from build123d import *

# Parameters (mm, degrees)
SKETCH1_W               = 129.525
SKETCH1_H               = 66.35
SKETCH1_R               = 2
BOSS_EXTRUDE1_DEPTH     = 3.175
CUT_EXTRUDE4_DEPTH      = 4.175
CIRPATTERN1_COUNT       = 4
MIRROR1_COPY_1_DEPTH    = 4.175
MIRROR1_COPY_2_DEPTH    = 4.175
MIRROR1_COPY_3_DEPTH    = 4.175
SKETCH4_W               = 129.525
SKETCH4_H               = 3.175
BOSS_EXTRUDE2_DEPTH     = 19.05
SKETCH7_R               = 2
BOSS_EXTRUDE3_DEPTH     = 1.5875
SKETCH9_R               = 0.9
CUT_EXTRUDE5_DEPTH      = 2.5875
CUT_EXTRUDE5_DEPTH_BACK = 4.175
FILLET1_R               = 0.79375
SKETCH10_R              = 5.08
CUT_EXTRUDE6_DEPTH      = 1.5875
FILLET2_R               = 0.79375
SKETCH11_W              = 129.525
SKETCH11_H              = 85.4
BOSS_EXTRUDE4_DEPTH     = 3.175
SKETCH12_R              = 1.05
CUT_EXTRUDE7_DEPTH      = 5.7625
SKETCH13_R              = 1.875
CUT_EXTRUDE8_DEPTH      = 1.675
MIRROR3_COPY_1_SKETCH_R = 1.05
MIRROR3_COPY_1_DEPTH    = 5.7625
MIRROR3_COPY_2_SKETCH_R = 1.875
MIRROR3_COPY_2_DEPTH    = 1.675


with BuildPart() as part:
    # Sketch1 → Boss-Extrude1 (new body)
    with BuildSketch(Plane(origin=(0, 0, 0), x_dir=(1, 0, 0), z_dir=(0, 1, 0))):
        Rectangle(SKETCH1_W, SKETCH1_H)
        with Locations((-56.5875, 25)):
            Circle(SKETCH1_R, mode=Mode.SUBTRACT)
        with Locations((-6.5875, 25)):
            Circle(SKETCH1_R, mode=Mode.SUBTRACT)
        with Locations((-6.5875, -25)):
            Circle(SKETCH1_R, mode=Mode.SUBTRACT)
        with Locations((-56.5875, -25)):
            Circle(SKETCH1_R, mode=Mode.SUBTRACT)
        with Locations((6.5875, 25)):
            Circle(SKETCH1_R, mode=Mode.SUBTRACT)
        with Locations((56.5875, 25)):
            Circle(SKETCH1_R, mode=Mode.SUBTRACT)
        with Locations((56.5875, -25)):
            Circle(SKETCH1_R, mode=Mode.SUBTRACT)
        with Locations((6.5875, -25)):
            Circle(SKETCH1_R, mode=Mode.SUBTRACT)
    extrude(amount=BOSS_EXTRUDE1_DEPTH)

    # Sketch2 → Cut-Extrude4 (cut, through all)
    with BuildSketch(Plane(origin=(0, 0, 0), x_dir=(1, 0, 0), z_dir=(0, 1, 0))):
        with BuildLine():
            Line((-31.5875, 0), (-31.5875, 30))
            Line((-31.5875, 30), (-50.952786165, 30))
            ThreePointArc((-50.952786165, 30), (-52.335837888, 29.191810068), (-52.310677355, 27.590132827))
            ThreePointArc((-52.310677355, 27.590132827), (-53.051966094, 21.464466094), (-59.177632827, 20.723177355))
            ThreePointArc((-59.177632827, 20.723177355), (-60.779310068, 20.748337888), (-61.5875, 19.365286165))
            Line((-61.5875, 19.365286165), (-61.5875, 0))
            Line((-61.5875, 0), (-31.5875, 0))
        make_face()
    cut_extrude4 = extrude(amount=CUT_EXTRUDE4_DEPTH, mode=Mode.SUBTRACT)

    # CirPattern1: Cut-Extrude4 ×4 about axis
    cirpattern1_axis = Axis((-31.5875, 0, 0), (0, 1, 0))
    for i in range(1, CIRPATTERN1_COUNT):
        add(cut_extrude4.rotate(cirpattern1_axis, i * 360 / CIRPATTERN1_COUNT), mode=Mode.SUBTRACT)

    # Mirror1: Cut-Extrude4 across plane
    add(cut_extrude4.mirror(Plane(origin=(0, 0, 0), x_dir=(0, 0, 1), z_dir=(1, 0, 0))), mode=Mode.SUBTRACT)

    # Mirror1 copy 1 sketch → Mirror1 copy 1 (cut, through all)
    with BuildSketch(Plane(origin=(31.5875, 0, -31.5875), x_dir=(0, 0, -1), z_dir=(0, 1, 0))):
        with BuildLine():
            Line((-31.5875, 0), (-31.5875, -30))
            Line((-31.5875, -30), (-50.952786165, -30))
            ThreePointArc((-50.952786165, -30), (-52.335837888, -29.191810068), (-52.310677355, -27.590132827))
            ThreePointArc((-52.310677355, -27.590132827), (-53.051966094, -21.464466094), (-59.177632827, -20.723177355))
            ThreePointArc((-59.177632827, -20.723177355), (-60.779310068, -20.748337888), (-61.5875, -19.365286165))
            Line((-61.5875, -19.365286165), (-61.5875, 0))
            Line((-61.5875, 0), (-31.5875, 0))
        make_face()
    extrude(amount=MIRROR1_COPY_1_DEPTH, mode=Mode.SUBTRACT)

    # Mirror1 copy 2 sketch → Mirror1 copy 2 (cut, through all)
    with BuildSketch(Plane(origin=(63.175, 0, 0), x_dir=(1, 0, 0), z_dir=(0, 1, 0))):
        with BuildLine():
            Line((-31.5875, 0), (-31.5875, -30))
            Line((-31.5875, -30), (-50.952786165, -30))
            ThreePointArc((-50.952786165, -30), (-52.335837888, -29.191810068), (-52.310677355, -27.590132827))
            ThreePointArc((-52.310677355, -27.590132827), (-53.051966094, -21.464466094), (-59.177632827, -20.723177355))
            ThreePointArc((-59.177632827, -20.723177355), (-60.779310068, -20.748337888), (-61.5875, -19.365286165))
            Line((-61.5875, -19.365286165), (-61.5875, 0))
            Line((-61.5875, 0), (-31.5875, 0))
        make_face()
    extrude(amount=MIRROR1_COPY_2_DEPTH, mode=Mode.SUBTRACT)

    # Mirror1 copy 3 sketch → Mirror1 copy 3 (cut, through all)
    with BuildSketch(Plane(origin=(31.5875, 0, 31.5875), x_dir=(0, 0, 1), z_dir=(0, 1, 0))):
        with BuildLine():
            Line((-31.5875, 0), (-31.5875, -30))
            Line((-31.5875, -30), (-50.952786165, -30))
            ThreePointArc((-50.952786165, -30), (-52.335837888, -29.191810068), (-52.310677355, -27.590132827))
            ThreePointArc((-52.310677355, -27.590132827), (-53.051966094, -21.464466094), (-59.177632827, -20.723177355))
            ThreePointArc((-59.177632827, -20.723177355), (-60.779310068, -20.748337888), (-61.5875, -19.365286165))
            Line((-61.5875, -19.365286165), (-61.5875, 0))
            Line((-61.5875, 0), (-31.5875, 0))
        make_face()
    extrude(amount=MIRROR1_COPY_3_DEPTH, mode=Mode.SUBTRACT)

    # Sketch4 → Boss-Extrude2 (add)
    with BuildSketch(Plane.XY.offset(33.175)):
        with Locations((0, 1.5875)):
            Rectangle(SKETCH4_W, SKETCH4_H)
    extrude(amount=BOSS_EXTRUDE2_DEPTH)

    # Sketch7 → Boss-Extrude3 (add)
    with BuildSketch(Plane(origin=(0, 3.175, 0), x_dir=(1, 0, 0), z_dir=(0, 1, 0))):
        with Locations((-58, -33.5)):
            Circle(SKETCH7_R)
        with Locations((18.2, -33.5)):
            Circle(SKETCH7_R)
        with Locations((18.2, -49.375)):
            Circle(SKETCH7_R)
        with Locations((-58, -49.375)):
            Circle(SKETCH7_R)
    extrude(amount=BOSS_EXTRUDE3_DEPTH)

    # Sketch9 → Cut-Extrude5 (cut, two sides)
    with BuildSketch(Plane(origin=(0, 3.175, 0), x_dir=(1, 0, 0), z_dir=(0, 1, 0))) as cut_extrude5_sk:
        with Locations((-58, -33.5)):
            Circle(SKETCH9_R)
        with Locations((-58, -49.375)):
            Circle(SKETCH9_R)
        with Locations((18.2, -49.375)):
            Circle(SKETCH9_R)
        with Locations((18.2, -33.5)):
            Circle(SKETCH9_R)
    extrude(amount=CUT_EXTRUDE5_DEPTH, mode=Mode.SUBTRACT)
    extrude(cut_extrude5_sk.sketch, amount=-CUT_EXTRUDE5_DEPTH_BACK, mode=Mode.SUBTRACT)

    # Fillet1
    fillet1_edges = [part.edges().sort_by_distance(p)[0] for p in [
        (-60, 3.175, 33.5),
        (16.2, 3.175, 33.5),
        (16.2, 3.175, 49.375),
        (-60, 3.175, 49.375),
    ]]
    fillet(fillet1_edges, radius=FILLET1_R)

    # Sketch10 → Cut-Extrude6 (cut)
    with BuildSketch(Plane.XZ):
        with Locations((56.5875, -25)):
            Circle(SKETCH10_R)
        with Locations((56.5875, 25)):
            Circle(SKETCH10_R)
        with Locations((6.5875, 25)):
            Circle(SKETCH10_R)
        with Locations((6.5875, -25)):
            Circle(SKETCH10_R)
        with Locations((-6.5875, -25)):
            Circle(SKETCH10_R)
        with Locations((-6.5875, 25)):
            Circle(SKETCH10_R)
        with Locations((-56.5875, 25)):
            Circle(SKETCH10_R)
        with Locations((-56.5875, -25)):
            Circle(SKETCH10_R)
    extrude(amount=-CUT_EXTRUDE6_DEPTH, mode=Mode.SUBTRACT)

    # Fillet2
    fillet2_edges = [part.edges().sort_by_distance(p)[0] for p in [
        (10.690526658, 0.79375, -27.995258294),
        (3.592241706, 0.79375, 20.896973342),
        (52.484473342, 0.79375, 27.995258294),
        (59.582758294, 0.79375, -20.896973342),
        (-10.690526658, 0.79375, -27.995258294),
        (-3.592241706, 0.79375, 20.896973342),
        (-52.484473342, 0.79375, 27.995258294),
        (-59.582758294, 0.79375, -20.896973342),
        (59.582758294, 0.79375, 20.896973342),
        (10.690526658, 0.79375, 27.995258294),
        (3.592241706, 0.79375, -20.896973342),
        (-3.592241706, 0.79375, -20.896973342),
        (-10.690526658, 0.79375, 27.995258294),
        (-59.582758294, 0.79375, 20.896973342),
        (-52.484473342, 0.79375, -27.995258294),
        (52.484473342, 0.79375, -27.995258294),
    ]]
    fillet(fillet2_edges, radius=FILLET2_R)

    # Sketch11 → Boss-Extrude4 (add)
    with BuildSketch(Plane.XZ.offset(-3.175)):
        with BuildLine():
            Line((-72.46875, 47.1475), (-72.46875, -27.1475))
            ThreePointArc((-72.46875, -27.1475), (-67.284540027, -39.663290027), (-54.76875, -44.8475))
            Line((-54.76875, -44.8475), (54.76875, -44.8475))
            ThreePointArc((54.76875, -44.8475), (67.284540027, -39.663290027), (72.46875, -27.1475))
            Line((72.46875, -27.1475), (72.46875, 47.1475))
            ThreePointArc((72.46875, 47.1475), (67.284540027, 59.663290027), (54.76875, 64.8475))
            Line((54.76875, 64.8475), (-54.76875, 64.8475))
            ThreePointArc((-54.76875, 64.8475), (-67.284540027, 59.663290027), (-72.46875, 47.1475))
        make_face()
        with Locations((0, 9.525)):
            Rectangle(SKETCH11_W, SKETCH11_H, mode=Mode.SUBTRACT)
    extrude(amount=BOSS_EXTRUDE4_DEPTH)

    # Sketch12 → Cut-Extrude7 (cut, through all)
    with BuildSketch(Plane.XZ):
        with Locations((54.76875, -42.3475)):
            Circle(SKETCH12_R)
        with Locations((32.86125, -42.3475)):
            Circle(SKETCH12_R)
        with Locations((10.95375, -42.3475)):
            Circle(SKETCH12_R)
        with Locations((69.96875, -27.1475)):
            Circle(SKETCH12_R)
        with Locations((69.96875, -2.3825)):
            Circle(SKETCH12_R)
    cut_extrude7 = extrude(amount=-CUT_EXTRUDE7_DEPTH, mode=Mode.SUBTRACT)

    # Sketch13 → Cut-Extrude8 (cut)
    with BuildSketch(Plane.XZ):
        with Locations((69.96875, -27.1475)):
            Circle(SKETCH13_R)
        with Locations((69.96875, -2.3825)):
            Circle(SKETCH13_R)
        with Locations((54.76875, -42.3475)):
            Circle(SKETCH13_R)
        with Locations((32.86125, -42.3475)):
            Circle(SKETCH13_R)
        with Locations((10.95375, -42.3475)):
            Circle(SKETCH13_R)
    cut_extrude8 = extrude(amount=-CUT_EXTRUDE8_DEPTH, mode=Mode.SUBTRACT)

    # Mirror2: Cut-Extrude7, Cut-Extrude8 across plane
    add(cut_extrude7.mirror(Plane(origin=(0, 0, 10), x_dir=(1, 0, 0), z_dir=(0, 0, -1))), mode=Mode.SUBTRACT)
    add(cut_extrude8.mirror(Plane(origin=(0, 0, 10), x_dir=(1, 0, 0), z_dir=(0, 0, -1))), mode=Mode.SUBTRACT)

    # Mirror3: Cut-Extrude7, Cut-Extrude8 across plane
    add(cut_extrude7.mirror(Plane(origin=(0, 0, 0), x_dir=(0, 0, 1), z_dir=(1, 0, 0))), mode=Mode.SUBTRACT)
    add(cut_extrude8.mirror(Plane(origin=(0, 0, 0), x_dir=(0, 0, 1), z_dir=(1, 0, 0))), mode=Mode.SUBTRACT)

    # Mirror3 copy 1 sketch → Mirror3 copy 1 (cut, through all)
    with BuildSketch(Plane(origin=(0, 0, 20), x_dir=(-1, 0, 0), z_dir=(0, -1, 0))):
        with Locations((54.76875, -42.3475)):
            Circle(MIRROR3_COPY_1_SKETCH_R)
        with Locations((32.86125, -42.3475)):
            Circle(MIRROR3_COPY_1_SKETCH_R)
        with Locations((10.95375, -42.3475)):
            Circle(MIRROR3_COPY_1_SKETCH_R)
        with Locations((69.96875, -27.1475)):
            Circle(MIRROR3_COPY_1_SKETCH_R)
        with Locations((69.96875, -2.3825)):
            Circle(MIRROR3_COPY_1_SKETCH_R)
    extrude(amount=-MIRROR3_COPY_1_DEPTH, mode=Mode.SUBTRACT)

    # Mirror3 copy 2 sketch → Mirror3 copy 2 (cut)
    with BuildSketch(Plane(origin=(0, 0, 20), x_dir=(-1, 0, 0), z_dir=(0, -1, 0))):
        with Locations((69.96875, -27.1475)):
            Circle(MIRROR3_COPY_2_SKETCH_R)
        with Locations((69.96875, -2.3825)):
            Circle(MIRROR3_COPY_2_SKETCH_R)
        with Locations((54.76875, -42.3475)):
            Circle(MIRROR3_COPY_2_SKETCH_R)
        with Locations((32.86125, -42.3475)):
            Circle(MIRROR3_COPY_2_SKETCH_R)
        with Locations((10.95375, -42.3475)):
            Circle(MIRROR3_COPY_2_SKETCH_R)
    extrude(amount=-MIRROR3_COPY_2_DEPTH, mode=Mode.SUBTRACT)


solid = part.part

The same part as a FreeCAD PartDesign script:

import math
import FreeCAD as App
import Part
import Sketcher
from FreeCAD import Vector
Q = App.Units.Quantity


def edges_at(feature, points):
    """Names of the edges that pass closest to the given points."""
    edges = feature.Shape.Edges
    near = lambda p: min(range(len(edges)), key=lambda i: edges[i].distToShape(Part.Vertex(*p))[0])
    return sorted({f"Edge{near(p) + 1}" for p in points})

doc = App.newDocument("Part")
body = doc.addObject("PartDesign::Body", "Body")

# Sketch on XZ plane
sketch1 = doc.addObject("Sketcher::SketchObject", "Sketch")
body.addObject(sketch1)
sketch1.AttachmentSupport = (doc.XZ_Plane, [""])
sketch1.MapMode = "FlatFace"
sketch1.addGeometry([
    Part.LineSegment(Vector(-64.8, -33.2, 0), Vector(-64.8, 33.2, 0)),  # 0
    Part.LineSegment(Vector(-64.8, 33.2, 0), Vector(64.8, 33.2, 0)),  # 1
    Part.LineSegment(Vector(64.8, 33.2, 0), Vector(64.8, -33.2, 0)),  # 2
    Part.LineSegment(Vector(64.8, -33.2, 0), Vector(-64.8, -33.2, 0)),  # 3
    Part.Circle(Vector(-56.6, 25, 0), Vector(0, 0, 1), 2),  # 4
    Part.Circle(Vector(-6.6, 25, 0), Vector(0, 0, 1), 2),  # 5
    Part.Circle(Vector(6.6, 25, 0), Vector(0, 0, 1), 2),  # 6
    Part.Circle(Vector(56.6, 25, 0), Vector(0, 0, 1), 2),  # 7
    Part.Circle(Vector(-56.6, -25, 0), Vector(0, 0, 1), 2),  # 8
    Part.Circle(Vector(-6.6, -25, 0), Vector(0, 0, 1), 2),  # 9
    Part.Circle(Vector(6.6, -25, 0), Vector(0, 0, 1), 2),  # 10
    Part.Circle(Vector(56.6, -25, 0), Vector(0, 0, 1), 2),  # 11
], False)
sketch1.addConstraint([
    Sketcher.Constraint("Coincident", 0, 2, 1, 1),
    Sketcher.Constraint("Coincident", 1, 2, 2, 1),
    Sketcher.Constraint("Coincident", 2, 2, 3, 1),
    Sketcher.Constraint("Coincident", 3, 2, 0, 1),
    Sketcher.Constraint("Vertical", 0),
    Sketcher.Constraint("Horizontal", 1),
    Sketcher.Constraint("Vertical", 2),
    Sketcher.Constraint("Horizontal", 3),
    Sketcher.Constraint("Equal", 4, 5),
    Sketcher.Constraint("Equal", 5, 6),
    Sketcher.Constraint("Equal", 6, 7),
    Sketcher.Constraint("Equal", 7, 8),
    Sketcher.Constraint("Equal", 8, 9),
    Sketcher.Constraint("Equal", 9, 10),
    Sketcher.Constraint("Equal", 10, 11),
    Sketcher.Constraint("Symmetric", 7, 3, 8, 3, -1, 1),
    Sketcher.Constraint("Symmetric", 6, 3, 9, 3, -1, 1),
    Sketcher.Constraint("Symmetric", 5, 3, 10, 3, -1, 1),
    Sketcher.Constraint("Symmetric", 4, 3, 11, 3, -1, 1),
    Sketcher.Constraint("Symmetric", 0, 2, 2, 2, -1, 1),
    Sketcher.Constraint("Symmetric", 5, 3, 6, 3, -2),
    Sketcher.Constraint("Symmetric", 4, 3, 7, 3, -2),
    Sketcher.Constraint("Horizontal", 4, 3, 5, 3),
    Sketcher.Constraint("Diameter", 4, Q("4 mm")),
    Sketcher.Constraint("DistanceY", -1, 1, 4, 3, Q("25 mm")),
    Sketcher.Constraint("DistanceX", 4, 3, 5, 3, Q("50 mm")),
    Sketcher.Constraint("DistanceY", 0, 1, 0, 2, Q("66.35 mm")),
    Sketcher.Constraint("DistanceX", 1, 1, 1, 2, Q("129.525 mm")),
    Sketcher.Constraint("DistanceX", 0, 2, 6, 3, Q("71.35 mm")),
])
pad1 = doc.addObject("PartDesign::Pad", "Pad")
body.addObject(pad1)
pad1.Profile = sketch1
pad1.Length = 3.175
pad1.Reversed = True

# Sketch on XZ plane
sketch2 = doc.addObject("Sketcher::SketchObject", "Sketch001")
body.addObject(sketch2)
sketch2.AttachmentSupport = (doc.XZ_Plane, [""])
sketch2.MapMode = "FlatFace"
sketch2.addGeometry([
    Part.LineSegment(Vector(-31.6, 0, 0), Vector(-31.6, -30, 0)),  # 0
    Part.LineSegment(Vector(-31.6, -30, 0), Vector(-51, -30, 0)),  # 1
    Part.ArcOfCircle(Part.Circle(Vector(-51, -28.4, 0), Vector(0, 0, 1), 1.6), math.radians(149), math.radians(270)),  # 2
    Part.ArcOfCircle(Part.Circle(Vector(-56.6, -25, 0), Vector(0, 0, 1), 5), math.radians(-31), math.radians(121)),  # 3
    Part.ArcOfCircle(Part.Circle(Vector(-60, -19.4, 0), Vector(0, 0, 1), 1.6), math.radians(180), math.radians(301)),  # 4
    Part.LineSegment(Vector(-61.6, -19.4, 0), Vector(-61.6, 0, 0)),  # 5
    Part.LineSegment(Vector(-61.6, 0, 0), Vector(-31.6, 0, 0)),  # 6
], False)
sketch2.addConstraint([
    Sketcher.Constraint("Coincident", 0, 2, 1, 1),
    Sketcher.Constraint("Tangent", 1, 2, 2, 2),
    Sketcher.Constraint("Tangent", 2, 1, 3, 1),
    Sketcher.Constraint("Tangent", 3, 2, 4, 2),
    Sketcher.Constraint("Tangent", 4, 1, 5, 1),
    Sketcher.Constraint("Coincident", 5, 2, 6, 1),
    Sketcher.Constraint("Coincident", 6, 2, 0, 1),
    Sketcher.Constraint("Vertical", 0),
    Sketcher.Constraint("Horizontal", 1),
    Sketcher.Constraint("Vertical", 5),
    Sketcher.Constraint("Horizontal", 6),
    Sketcher.Constraint("Equal", 2, 4),
    Sketcher.Constraint("PointOnObject", 5, 2, -1),
    Sketcher.Constraint("Equal", 6, 0),
    Sketcher.Constraint("Equal", 1, 5),
    Sketcher.Constraint("Radius", 3, Q("5 mm")),
    Sketcher.Constraint("DistanceX", 6, 1, 6, 2, Q("30 mm")),
    Sketcher.Constraint("DistanceY", 3, 3, -1, 1, Q("25 mm")),
    Sketcher.Constraint("DistanceX", 4, 3, -1, 1, Q("60 mm")),
    Sketcher.Constraint("Radius", 2, Q("1.5875 mm")),
])
pocket1 = doc.addObject("PartDesign::Pocket", "Pocket")
body.addObject(pocket1)
pocket1.Profile = sketch2
pocket1.Type = "ThroughAll"
doc.recompute()

datumline = doc.addObject("PartDesign::Line", "DatumLine")
body.addObject(datumline)
datumline.Placement = App.Placement(Vector(-31.5875, 0, 0), App.Rotation(Vector(0, 0, 1), Vector(0, 1, 0)))
polarpattern = doc.addObject("PartDesign::PolarPattern", "PolarPattern")
body.addObject(polarpattern)
polarpattern.Originals = [pocket1]
polarpattern.Axis = (datumline, [""])
polarpattern.Angle = 360
polarpattern.Occurrences = 4
body.Tip = polarpattern
doc.recompute()

mirrored = doc.addObject("PartDesign::Mirrored", "Mirrored")
body.addObject(mirrored)
mirrored.Originals = [pocket1]
mirrored.MirrorPlane = (doc.YZ_Plane, [""])
body.Tip = mirrored

# Sketch on XZ plane
sketch3 = doc.addObject("Sketcher::SketchObject", "Sketch002")
body.addObject(sketch3)
sketch3.AttachmentSupport = (doc.XZ_Plane, [""])
sketch3.MapMode = "FlatFace"
sketch3.addGeometry([
    Part.LineSegment(Vector(61.6, 0, 0), Vector(31.6, 0, 0)),  # 0
    Part.LineSegment(Vector(31.6, 0, 0), Vector(31.6, 30, 0)),  # 1
    Part.LineSegment(Vector(31.6, 30, 0), Vector(51, 30, 0)),  # 2
    Part.ArcOfCircle(Part.Circle(Vector(51, 28.4, 0), Vector(0, 0, 1), 1.6), math.radians(-31), math.radians(90)),  # 3
    Part.ArcOfCircle(Part.Circle(Vector(56.6, 25, 0), Vector(0, 0, 1), 5), math.radians(149), math.radians(301)),  # 4
    Part.ArcOfCircle(Part.Circle(Vector(60, 19.4, 0), Vector(0, 0, 1), 1.6), math.radians(0), math.radians(121)),  # 5
    Part.LineSegment(Vector(61.6, 19.4, 0), Vector(61.6, 0, 0)),  # 6
], False)
sketch3.addConstraint([
    Sketcher.Constraint("Coincident", 0, 2, 1, 1),
    Sketcher.Constraint("Coincident", 1, 2, 2, 1),
    Sketcher.Constraint("Tangent", 2, 2, 3, 2),
    Sketcher.Constraint("Tangent", 3, 1, 4, 1),
    Sketcher.Constraint("Tangent", 4, 2, 5, 2),
    Sketcher.Constraint("Tangent", 5, 1, 6, 1),
    Sketcher.Constraint("Coincident", 6, 2, 0, 1),
    Sketcher.Constraint("Horizontal", 0),
    Sketcher.Constraint("Vertical", 1),
    Sketcher.Constraint("Horizontal", 2),
    Sketcher.Constraint("Vertical", 6),
    Sketcher.Constraint("Equal", 3, 5),
    Sketcher.Constraint("PointOnObject", 0, 2, -1),
    Sketcher.Constraint("Equal", 0, 1),
    Sketcher.Constraint("Equal", 2, 6),
    Sketcher.Constraint("Radius", 4, Q("5 mm")),
    Sketcher.Constraint("DistanceX", 0, 2, 0, 1, Q("30 mm")),
    Sketcher.Constraint("DistanceY", -1, 1, 4, 3, Q("25 mm")),
    Sketcher.Constraint("DistanceX", -1, 1, 5, 3, Q("60 mm")),
    Sketcher.Constraint("Radius", 3, Q("1.5875 mm")),
])
pocket2 = doc.addObject("PartDesign::Pocket", "Pocket001")
body.addObject(pocket2)
pocket2.Profile = sketch3
pocket2.Type = "ThroughAll"

# Sketch on XZ plane
sketch4 = doc.addObject("Sketcher::SketchObject", "Sketch003")
body.addObject(sketch4)
sketch4.AttachmentSupport = (doc.XZ_Plane, [""])
sketch4.MapMode = "FlatFace"
sketch4.addGeometry([
    Part.LineSegment(Vector(31.6, 30, 0), Vector(31.6, 0, 0)),  # 0
    Part.LineSegment(Vector(31.6, 0, 0), Vector(1.6, 0, 0)),  # 1
    Part.LineSegment(Vector(1.6, 0, 0), Vector(1.6, 19.4, 0)),  # 2
    Part.ArcOfCircle(Part.Circle(Vector(3.2, 19.4, 0), Vector(0, 0, 1), 1.6), math.radians(59), math.radians(180)),  # 3
    Part.ArcOfCircle(Part.Circle(Vector(6.6, 25, 0), Vector(0, 0, 1), 5), math.radians(-121), math.radians(31)),  # 4
    Part.ArcOfCircle(Part.Circle(Vector(12.2, 28.4, 0), Vector(0, 0, 1), 1.6), math.radians(90), math.radians(211)),  # 5
    Part.LineSegment(Vector(12.2, 30, 0), Vector(31.6, 30, 0)),  # 6
], False)
sketch4.addConstraint([
    Sketcher.Constraint("Coincident", 0, 2, 1, 1),
    Sketcher.Constraint("Coincident", 1, 2, 2, 1),
    Sketcher.Constraint("Tangent", 2, 2, 3, 2),
    Sketcher.Constraint("Tangent", 3, 1, 4, 1),
    Sketcher.Constraint("Tangent", 4, 2, 5, 2),
    Sketcher.Constraint("Tangent", 5, 1, 6, 1),
    Sketcher.Constraint("Coincident", 6, 2, 0, 1),
    Sketcher.Constraint("Vertical", 0),
    Sketcher.Constraint("Horizontal", 1),
    Sketcher.Constraint("Vertical", 2),
    Sketcher.Constraint("Horizontal", 6),
    Sketcher.Constraint("Equal", 3, 5),
    Sketcher.Constraint("PointOnObject", 0, 2, -1),
    Sketcher.Constraint("Equal", 1, 0),
    Sketcher.Constraint("Equal", 6, 2),
    Sketcher.Constraint("Radius", 4, Q("5 mm")),
    Sketcher.Constraint("DistanceX", 1, 2, 1, 1, Q("30 mm")),
    Sketcher.Constraint("DistanceY", -1, 1, 4, 3, Q("25 mm")),
    Sketcher.Constraint("Radius", 3, Q("1.5875 mm")),
    Sketcher.Constraint("DistanceX", -1, 1, 3, 3, Q("3.175 mm")),
])
pocket3 = doc.addObject("PartDesign::Pocket", "Pocket002")
body.addObject(pocket3)
pocket3.Profile = sketch4
pocket3.Type = "ThroughAll"

# Sketch on XZ plane
sketch5 = doc.addObject("Sketcher::SketchObject", "Sketch004")
body.addObject(sketch5)
sketch5.AttachmentSupport = (doc.XZ_Plane, [""])
sketch5.MapMode = "FlatFace"
sketch5.addGeometry([
    Part.LineSegment(Vector(1.6, 0, 0), Vector(31.6, 0, 0)),  # 0
    Part.LineSegment(Vector(31.6, 0, 0), Vector(31.6, -30, 0)),  # 1
    Part.LineSegment(Vector(31.6, -30, 0), Vector(12.2, -30, 0)),  # 2
    Part.ArcOfCircle(Part.Circle(Vector(12.2, -28.4, 0), Vector(0, 0, 1), 1.6), math.radians(149), math.radians(270)),  # 3
    Part.ArcOfCircle(Part.Circle(Vector(6.6, -25, 0), Vector(0, 0, 1), 5), math.radians(-31), math.radians(121)),  # 4
    Part.ArcOfCircle(Part.Circle(Vector(3.2, -19.4, 0), Vector(0, 0, 1), 1.6), math.radians(180), math.radians(301)),  # 5
    Part.LineSegment(Vector(1.6, -19.4, 0), Vector(1.6, 0, 0)),  # 6
], False)
sketch5.addConstraint([
    Sketcher.Constraint("Coincident", 0, 2, 1, 1),
    Sketcher.Constraint("Coincident", 1, 2, 2, 1),
    Sketcher.Constraint("Tangent", 2, 2, 3, 2),
    Sketcher.Constraint("Tangent", 3, 1, 4, 1),
    Sketcher.Constraint("Tangent", 4, 2, 5, 2),
    Sketcher.Constraint("Tangent", 5, 1, 6, 1),
    Sketcher.Constraint("Coincident", 6, 2, 0, 1),
    Sketcher.Constraint("Horizontal", 0),
    Sketcher.Constraint("Vertical", 1),
    Sketcher.Constraint("Horizontal", 2),
    Sketcher.Constraint("Vertical", 6),
    Sketcher.Constraint("Equal", 3, 5),
    Sketcher.Constraint("PointOnObject", 0, 2, -1),
    Sketcher.Constraint("Equal", 0, 1),
    Sketcher.Constraint("Equal", 2, 6),
    Sketcher.Constraint("Radius", 4, Q("5 mm")),
    Sketcher.Constraint("DistanceX", 0, 1, 0, 2, Q("30 mm")),
    Sketcher.Constraint("DistanceY", 4, 3, -1, 1, Q("25 mm")),
    Sketcher.Constraint("Radius", 3, Q("1.5875 mm")),
    Sketcher.Constraint("DistanceX", -1, 1, 5, 3, Q("3.175 mm")),
])
pocket4 = doc.addObject("PartDesign::Pocket", "Pocket003")
body.addObject(pocket4)
pocket4.Profile = sketch5
pocket4.Type = "ThroughAll"

# Sketch on XY plane
sketch6 = doc.addObject("Sketcher::SketchObject", "Sketch005")
body.addObject(sketch6)
sketch6.AttachmentSupport = (doc.XY_Plane, [""])
sketch6.MapMode = "FlatFace"
sketch6.AttachmentOffset = App.Placement(Vector(0, 0, 33.175), App.Rotation())
sketch6.addGeometry([
    Part.LineSegment(Vector(-64.8, 3.2, 0), Vector(-64.8, 0, 0)),
    Part.LineSegment(Vector(-64.8, 0, 0), Vector(64.8, 0, 0)),
    Part.LineSegment(Vector(64.8, 0, 0), Vector(64.8, 3.2, 0)),
    Part.LineSegment(Vector(64.8, 3.2, 0), Vector(-64.8, 3.2, 0)),
], False)
sketch6.addConstraint([
    Sketcher.Constraint("Coincident", 0, 2, 1, 1),
    Sketcher.Constraint("Coincident", 1, 2, 2, 1),
    Sketcher.Constraint("Coincident", 2, 2, 3, 1),
    Sketcher.Constraint("Coincident", 3, 2, 0, 1),
    Sketcher.Constraint("Vertical", 0),
    Sketcher.Constraint("Horizontal", 1),
    Sketcher.Constraint("Vertical", 2),
    Sketcher.Constraint("Horizontal", 3),
    Sketcher.Constraint("Symmetric", 0, 2, 1, 2, -1, 1),
    Sketcher.Constraint("DistanceX", 1, 1, 1, 2, Q("129.525 mm")),
    Sketcher.Constraint("DistanceY", 0, 2, 0, 1, Q("3.175 mm")),
])
pad2 = doc.addObject("PartDesign::Pad", "Pad001")
body.addObject(pad2)
pad2.Profile = sketch6
pad2.Length = 19.05

# Sketch on XZ plane
sketch7 = doc.addObject("Sketcher::SketchObject", "Sketch006")
body.addObject(sketch7)
sketch7.AttachmentSupport = (doc.XZ_Plane, [""])
sketch7.MapMode = "FlatFace"
sketch7.AttachmentOffset = App.Placement(Vector(0, 0, -3.175), App.Rotation())
sketch7.addGeometry([
    Part.Circle(Vector(-58, 33.5, 0), Vector(0, 0, 1), 2),
    Part.Circle(Vector(18.2, 33.5, 0), Vector(0, 0, 1), 2),
    Part.Circle(Vector(18.2, 49.4, 0), Vector(0, 0, 1), 2),
    Part.Circle(Vector(-58, 49.4, 0), Vector(0, 0, 1), 2),
], False)
sketch7.addConstraint([
    Sketcher.Constraint("Equal", 0, 1),
    Sketcher.Constraint("Equal", 1, 2),
    Sketcher.Constraint("Equal", 2, 3),
    Sketcher.Constraint("Horizontal", 0, 3, 1, 3),
    Sketcher.Constraint("Horizontal", 2, 3, 3, 3),
    Sketcher.Constraint("Vertical", 1, 3, 2, 3),
    Sketcher.Constraint("Vertical", 0, 3, 3, 3),
    Sketcher.Constraint("Diameter", 0, Q("4 mm")),
    Sketcher.Constraint("DistanceX", 0, 3, -1, 1, Q("58 mm")),
    Sketcher.Constraint("DistanceY", -1, 1, 0, 3, Q("33.5 mm")),
    Sketcher.Constraint("DistanceX", -1, 1, 1, 3, Q("18.2 mm")),
    Sketcher.Constraint("DistanceY", -1, 1, 2, 3, Q("49.375 mm")),
])
pad3 = doc.addObject("PartDesign::Pad", "Pad002")
body.addObject(pad3)
pad3.Profile = sketch7
pad3.Length = 1.5875
pad3.Reversed = True

# Sketch on XZ plane
sketch8 = doc.addObject("Sketcher::SketchObject", "Sketch007")
body.addObject(sketch8)
sketch8.AttachmentSupport = (doc.XZ_Plane, [""])
sketch8.MapMode = "FlatFace"
sketch8.AttachmentOffset = App.Placement(Vector(0, 0, -3.175), App.Rotation())
sketch8.addGeometry([
    Part.Circle(Vector(-58, 33.5, 0), Vector(0, 0, 1), 0.9),
    Part.Circle(Vector(-58, 49.4, 0), Vector(0, 0, 1), 0.9),
    Part.Circle(Vector(18.2, 49.4, 0), Vector(0, 0, 1), 0.9),
    Part.Circle(Vector(18.2, 33.5, 0), Vector(0, 0, 1), 0.9),
], False)
sketch8.addConstraint([
    Sketcher.Constraint("Equal", 0, 1),
    Sketcher.Constraint("Equal", 1, 2),
    Sketcher.Constraint("Equal", 2, 3),
    Sketcher.Constraint("Horizontal", 1, 3, 2, 3),
    Sketcher.Constraint("Horizontal", 0, 3, 3, 3),
    Sketcher.Constraint("Vertical", 0, 3, 1, 3),
    Sketcher.Constraint("Vertical", 2, 3, 3, 3),
    Sketcher.Constraint("Diameter", 0, Q("1.8 mm")),
    Sketcher.Constraint("DistanceX", 0, 3, -1, 1, Q("58 mm")),
    Sketcher.Constraint("DistanceY", -1, 1, 0, 3, Q("33.5 mm")),
    Sketcher.Constraint("DistanceX", -1, 1, 2, 3, Q("18.2 mm")),
    Sketcher.Constraint("DistanceY", -1, 1, 1, 3, Q("49.375 mm")),
])
pocket5 = doc.addObject("PartDesign::Pocket", "Pocket004")
body.addObject(pocket5)
pocket5.Profile = sketch8
pocket5.Type = "ThroughAll"
pocket5.Midplane = True
doc.recompute()

fillet = doc.addObject("PartDesign::Fillet", "Fillet")
body.addObject(fillet)
fillet.Base = (pocket5, edges_at(pocket5, [
    (-60, 3.175, 33.5),
    (16.2, 3.175, 33.5),
    (16.2, 3.175, 49.375),
    (-60, 3.175, 49.375),
]))
fillet.Radius = 0.79375

# Sketch on XZ plane
sketch9 = doc.addObject("Sketcher::SketchObject", "Sketch008")
body.addObject(sketch9)
sketch9.AttachmentSupport = (doc.XZ_Plane, [""])
sketch9.MapMode = "FlatFace"
sketch9.addGeometry([
    Part.Circle(Vector(57, -25, 0), Vector(0, 0, 1), 5),  # 0
    Part.Circle(Vector(57, 25, 0), Vector(0, 0, 1), 5),  # 1
    Part.Circle(Vector(7, 25, 0), Vector(0, 0, 1), 5),  # 2
    Part.Circle(Vector(7, -25, 0), Vector(0, 0, 1), 5),  # 3
    Part.Circle(Vector(-7, -25, 0), Vector(0, 0, 1), 5),  # 4
    Part.Circle(Vector(-7, 25, 0), Vector(0, 0, 1), 5),  # 5
    Part.Circle(Vector(-57, 25, 0), Vector(0, 0, 1), 5),  # 6
    Part.Circle(Vector(-57, -25, 0), Vector(0, 0, 1), 5),  # 7
], False)
sketch9.addConstraint([
    Sketcher.Constraint("Equal", 0, 1),
    Sketcher.Constraint("Equal", 1, 2),
    Sketcher.Constraint("Equal", 2, 3),
    Sketcher.Constraint("Equal", 3, 4),
    Sketcher.Constraint("Equal", 4, 5),
    Sketcher.Constraint("Equal", 5, 6),
    Sketcher.Constraint("Equal", 6, 7),
    Sketcher.Constraint("Symmetric", 2, 3, 4, 3, -1, 1),
    Sketcher.Constraint("Symmetric", 3, 3, 5, 3, -1, 1),
    Sketcher.Constraint("Symmetric", 0, 3, 6, 3, -1, 1),
    Sketcher.Constraint("Symmetric", 1, 3, 7, 3, -1, 1),
    Sketcher.Constraint("Symmetric", 3, 3, 4, 3, -2),
    Sketcher.Constraint("Symmetric", 1, 3, 6, 3, -2),
    Sketcher.Constraint("Horizontal", 1, 3, 2, 3),
    Sketcher.Constraint("Diameter", 0, Q("10.16 mm")),
    Sketcher.Constraint("DistanceY", 0, 3, -1, 1, Q("25 mm")),
    Sketcher.Constraint("DistanceX", 2, 3, 1, 3, Q("50 mm")),
    Sketcher.Constraint("DistanceX", 4, 3, 3, 3, Q("13.175 mm")),
])
pocket6 = doc.addObject("PartDesign::Pocket", "Pocket005")
body.addObject(pocket6)
pocket6.Profile = sketch9
pocket6.Length = 1.5875
doc.recompute()

fillet2 = doc.addObject("PartDesign::Fillet", "Fillet001")
body.addObject(fillet2)
fillet2.Base = (pocket6, edges_at(pocket6, [
    (10.691, 0.794, -27.995),
    (3.592, 0.794, 20.897),
    (52.484, 0.794, 27.995),
    (59.583, 0.794, -20.897),
    (-10.691, 0.794, -27.995),
    (-3.592, 0.794, 20.897),
    (-52.484, 0.794, 27.995),
    (-59.583, 0.794, -20.897),
    (59.583, 0.794, 20.897),
    (10.691, 0.794, 27.995),
    (3.592, 0.794, -20.897),
    (-3.592, 0.794, -20.897),
    (-10.691, 0.794, 27.995),
    (-59.583, 0.794, 20.897),
    (-52.484, 0.794, -27.995),
    (52.484, 0.794, -27.995),
]))
fillet2.Radius = 0.79375

# Sketch on XZ plane
sketch10 = doc.addObject("Sketcher::SketchObject", "Sketch009")
body.addObject(sketch10)
sketch10.AttachmentSupport = (doc.XZ_Plane, [""])
sketch10.MapMode = "FlatFace"
sketch10.AttachmentOffset = App.Placement(Vector(0, 0, -3.175), App.Rotation())
sketch10.addGeometry([
    Part.LineSegment(Vector(-72, 47, 0), Vector(-72, -27, 0)),  # 0
    Part.ArcOfCircle(Part.Circle(Vector(-55, -27, 0), Vector(0, 0, 1), 18), math.radians(180), math.radians(270)),  # 1
    Part.LineSegment(Vector(-55, -45, 0), Vector(55, -45, 0)),  # 2
    Part.ArcOfCircle(Part.Circle(Vector(55, -27, 0), Vector(0, 0, 1), 18), math.radians(-90), math.radians(0)),  # 3
    Part.LineSegment(Vector(72, -27, 0), Vector(72, 47, 0)),  # 4
    Part.ArcOfCircle(Part.Circle(Vector(55, 47, 0), Vector(0, 0, 1), 18), math.radians(0), math.radians(90)),  # 5
    Part.LineSegment(Vector(55, 65, 0), Vector(-55, 65, 0)),  # 6
    Part.ArcOfCircle(Part.Circle(Vector(-55, 47, 0), Vector(0, 0, 1), 18), math.radians(90), math.radians(180)),  # 7
    Part.LineSegment(Vector(65, -33, 0), Vector(-65, -33, 0)),  # 8
    Part.LineSegment(Vector(-65, -33, 0), Vector(-65, 52, 0)),  # 9
    Part.LineSegment(Vector(-65, 52, 0), Vector(65, 52, 0)),  # 10
    Part.LineSegment(Vector(65, 52, 0), Vector(65, -33, 0)),  # 11
], False)
sketch10.addConstraint([
    Sketcher.Constraint("Tangent", 0, 2, 1, 1),
    Sketcher.Constraint("Tangent", 1, 2, 2, 1),
    Sketcher.Constraint("Tangent", 2, 2, 3, 1),
    Sketcher.Constraint("Tangent", 3, 2, 4, 1),
    Sketcher.Constraint("Tangent", 4, 2, 5, 1),
    Sketcher.Constraint("Tangent", 5, 2, 6, 1),
    Sketcher.Constraint("Tangent", 6, 2, 7, 1),
    Sketcher.Constraint("Tangent", 7, 2, 0, 1),
    Sketcher.Constraint("Coincident", 8, 2, 9, 1),
    Sketcher.Constraint("Coincident", 9, 2, 10, 1),
    Sketcher.Constraint("Coincident", 10, 2, 11, 1),
    Sketcher.Constraint("Coincident", 11, 2, 8, 1),
    Sketcher.Constraint("Vertical", 0),
    Sketcher.Constraint("Horizontal", 2),
    Sketcher.Constraint("Vertical", 4),
    Sketcher.Constraint("Horizontal", 6),
    Sketcher.Constraint("Horizontal", 8),
    Sketcher.Constraint("Vertical", 9),
    Sketcher.Constraint("Horizontal", 10),
    Sketcher.Constraint("Vertical", 11),
    Sketcher.Constraint("Equal", 1, 3),
    Sketcher.Constraint("Equal", 3, 5),
    Sketcher.Constraint("Equal", 5, 7),
    Sketcher.Constraint("Radius", 1, Q("17.7 mm")),
    Sketcher.Constraint("DistanceY", 9, 1, 9, 2, Q("85.4 mm")),
    Sketcher.Constraint("DistanceX", 8, 2, 8, 1, Q("129.525 mm")),
    Sketcher.Constraint("DistanceY", 0, 2, 0, 1, Q("74.295 mm")),
    Sketcher.Constraint("DistanceX", 2, 1, 2, 2, Q("109.5375 mm")),
    Sketcher.Constraint("DistanceY", 8, 2, -1, 1, Q("33.175 mm")),
    Sketcher.Constraint("DistanceY", 1, 3, -1, 1, Q("27.1475 mm")),
    Sketcher.Constraint("DistanceX", 8, 2, -1, 1, Q("64.7625 mm")),
    Sketcher.Constraint("DistanceX", 1, 3, -1, 1, Q("54.76875 mm")),
])
pad4 = doc.addObject("PartDesign::Pad", "Pad003")
body.addObject(pad4)
pad4.Profile = sketch10
pad4.Length = 3.175

# Sketch on XZ plane
sketch11 = doc.addObject("Sketcher::SketchObject", "Sketch010")
body.addObject(sketch11)
sketch11.AttachmentSupport = (doc.XZ_Plane, [""])
sketch11.MapMode = "FlatFace"
sketch11.addGeometry([
    Part.Circle(Vector(54.8, -42.3, 0), Vector(0, 0, 1), 1.1),  # 0
    Part.Circle(Vector(32.9, -42.3, 0), Vector(0, 0, 1), 1.1),  # 1
    Part.Circle(Vector(11, -42.3, 0), Vector(0, 0, 1), 1.1),  # 2
    Part.Circle(Vector(70, -27.1, 0), Vector(0, 0, 1), 1.1),  # 3
    Part.Circle(Vector(70, -2.4, 0), Vector(0, 0, 1), 1.1),  # 4
], False)
sketch11.addConstraint([
    Sketcher.Constraint("Equal", 0, 1),
    Sketcher.Constraint("Equal", 1, 2),
    Sketcher.Constraint("Equal", 2, 3),
    Sketcher.Constraint("Equal", 3, 4),
    Sketcher.Constraint("Horizontal", 0, 3, 1, 3),
    Sketcher.Constraint("Horizontal", 1, 3, 2, 3),
    Sketcher.Constraint("Vertical", 3, 3, 4, 3),
    Sketcher.Constraint("Diameter", 0, Q("2.1 mm")),
    Sketcher.Constraint("DistanceX", 0, 3, 3, 3, Q("15.2 mm")),
    Sketcher.Constraint("DistanceY", 0, 3, 3, 3, Q("15.2 mm")),
    Sketcher.Constraint("DistanceX", 2, 3, 0, 3, Q("43.815 mm")),
    Sketcher.Constraint("DistanceY", 3, 3, 4, 3, Q("24.765 mm")),
    Sketcher.Constraint("DistanceY", 0, 3, -1, 1, Q("42.3475 mm")),
    Sketcher.Constraint("DistanceX", 1, 3, 0, 3, Q("21.9075 mm")),
    Sketcher.Constraint("DistanceX", -1, 1, 0, 3, Q("54.76875 mm")),
])
pocket7 = doc.addObject("PartDesign::Pocket", "Pocket006")
body.addObject(pocket7)
pocket7.Profile = sketch11
pocket7.Type = "ThroughAll"

# Sketch on XZ plane
sketch12 = doc.addObject("Sketcher::SketchObject", "Sketch011")
body.addObject(sketch12)
sketch12.AttachmentSupport = (doc.XZ_Plane, [""])
sketch12.MapMode = "FlatFace"
sketch12.addGeometry([
    Part.Circle(Vector(70, -27.1, 0), Vector(0, 0, 1), 1.9),  # 0
    Part.Circle(Vector(70, -2.4, 0), Vector(0, 0, 1), 1.9),  # 1
    Part.Circle(Vector(54.8, -42.3, 0), Vector(0, 0, 1), 1.9),  # 2
    Part.Circle(Vector(32.9, -42.3, 0), Vector(0, 0, 1), 1.9),  # 3
    Part.Circle(Vector(11, -42.3, 0), Vector(0, 0, 1), 1.9),  # 4
], False)
sketch12.addConstraint([
    Sketcher.Constraint("Equal", 0, 1),
    Sketcher.Constraint("Equal", 1, 2),
    Sketcher.Constraint("Equal", 2, 3),
    Sketcher.Constraint("Equal", 3, 4),
    Sketcher.Constraint("Horizontal", 2, 3, 3, 3),
    Sketcher.Constraint("Horizontal", 3, 3, 4, 3),
    Sketcher.Constraint("Vertical", 0, 3, 1, 3),
    Sketcher.Constraint("Diameter", 0, Q("3.75 mm")),
    Sketcher.Constraint("DistanceX", 2, 3, 0, 3, Q("15.2 mm")),
    Sketcher.Constraint("DistanceY", 2, 3, 0, 3, Q("15.2 mm")),
    Sketcher.Constraint("DistanceY", 0, 3, 1, 3, Q("24.765 mm")),
    Sketcher.Constraint("DistanceX", 4, 3, 2, 3, Q("43.815 mm")),
    Sketcher.Constraint("DistanceY", 0, 3, -1, 1, Q("27.1475 mm")),
    Sketcher.Constraint("DistanceX", 3, 3, 2, 3, Q("21.9075 mm")),
    Sketcher.Constraint("DistanceX", -1, 1, 0, 3, Q("69.96875 mm")),
])
pocket8 = doc.addObject("PartDesign::Pocket", "Pocket007")
body.addObject(pocket8)
pocket8.Profile = sketch12
pocket8.Length = 1.675
doc.recompute()

datumplane = doc.addObject("PartDesign::Plane", "DatumPlane")
body.addObject(datumplane)
datumplane.AttachmentSupport = (doc.XY_Plane, [""])
datumplane.MapMode = "FlatFace"
datumplane.AttachmentOffset = App.Placement(Vector(0, 0, 10), App.Rotation())
mirrored2 = doc.addObject("PartDesign::Mirrored", "Mirrored001")
body.addObject(mirrored2)
mirrored2.Originals = [pocket7, pocket8]
mirrored2.MirrorPlane = (datumplane, [""])
body.Tip = mirrored2
doc.recompute()

mirrored3 = doc.addObject("PartDesign::Mirrored", "Mirrored002")
body.addObject(mirrored3)
mirrored3.Originals = [pocket7, pocket8]
mirrored3.MirrorPlane = (doc.YZ_Plane, [""])
body.Tip = mirrored3

# Sketch on XZ plane
sketch13 = doc.addObject("Sketcher::SketchObject", "Sketch012")
body.addObject(sketch13)
sketch13.AttachmentSupport = (doc.XZ_Plane, [""])
sketch13.MapMode = "FlatFace"
sketch13.addGeometry([
    Part.Circle(Vector(-54.8, 62.3, 0), Vector(0, 0, 1), 1.1),  # 0
    Part.Circle(Vector(-32.9, 62.3, 0), Vector(0, 0, 1), 1.1),  # 1
    Part.Circle(Vector(-11, 62.3, 0), Vector(0, 0, 1), 1.1),  # 2
    Part.Circle(Vector(-70, 47.1, 0), Vector(0, 0, 1), 1.1),  # 3
    Part.Circle(Vector(-70, 22.4, 0), Vector(0, 0, 1), 1.1),  # 4
], False)
sketch13.addConstraint([
    Sketcher.Constraint("Equal", 0, 1),
    Sketcher.Constraint("Equal", 1, 2),
    Sketcher.Constraint("Equal", 2, 3),
    Sketcher.Constraint("Equal", 3, 4),
    Sketcher.Constraint("Horizontal", 0, 3, 1, 3),
    Sketcher.Constraint("Horizontal", 1, 3, 2, 3),
    Sketcher.Constraint("Vertical", 3, 3, 4, 3),
    Sketcher.Constraint("Diameter", 0, Q("2.1 mm")),
    Sketcher.Constraint("DistanceX", 3, 3, 0, 3, Q("15.2 mm")),
    Sketcher.Constraint("DistanceY", 3, 3, 0, 3, Q("15.2 mm")),
    Sketcher.Constraint("DistanceX", 0, 3, 2, 3, Q("43.815 mm")),
    Sketcher.Constraint("DistanceY", 4, 3, 3, 3, Q("24.765 mm")),
    Sketcher.Constraint("DistanceY", -1, 1, 0, 3, Q("62.3475 mm")),
    Sketcher.Constraint("DistanceX", 0, 3, 1, 3, Q("21.9075 mm")),
    Sketcher.Constraint("DistanceX", 0, 3, -1, 1, Q("54.76875 mm")),
])
pocket9 = doc.addObject("PartDesign::Pocket", "Pocket008")
body.addObject(pocket9)
pocket9.Profile = sketch13
pocket9.Type = "ThroughAll"

# Sketch on XZ plane
sketch14 = doc.addObject("Sketcher::SketchObject", "Sketch013")
body.addObject(sketch14)
sketch14.AttachmentSupport = (doc.XZ_Plane, [""])
sketch14.MapMode = "FlatFace"
sketch14.addGeometry([
    Part.Circle(Vector(-70, 47.1, 0), Vector(0, 0, 1), 1.9),  # 0
    Part.Circle(Vector(-70, 22.4, 0), Vector(0, 0, 1), 1.9),  # 1
    Part.Circle(Vector(-54.8, 62.3, 0), Vector(0, 0, 1), 1.9),  # 2
    Part.Circle(Vector(-32.9, 62.3, 0), Vector(0, 0, 1), 1.9),  # 3
    Part.Circle(Vector(-11, 62.3, 0), Vector(0, 0, 1), 1.9),  # 4
], False)
sketch14.addConstraint([
    Sketcher.Constraint("Equal", 0, 1),
    Sketcher.Constraint("Equal", 1, 2),
    Sketcher.Constraint("Equal", 2, 3),
    Sketcher.Constraint("Equal", 3, 4),
    Sketcher.Constraint("Horizontal", 2, 3, 3, 3),
    Sketcher.Constraint("Horizontal", 3, 3, 4, 3),
    Sketcher.Constraint("Vertical", 0, 3, 1, 3),
    Sketcher.Constraint("Diameter", 0, Q("3.75 mm")),
    Sketcher.Constraint("DistanceX", 0, 3, 2, 3, Q("15.2 mm")),
    Sketcher.Constraint("DistanceY", 0, 3, 2, 3, Q("15.2 mm")),
    Sketcher.Constraint("DistanceY", 1, 3, 0, 3, Q("24.765 mm")),
    Sketcher.Constraint("DistanceX", 2, 3, 4, 3, Q("43.815 mm")),
    Sketcher.Constraint("DistanceY", -1, 1, 0, 3, Q("47.1475 mm")),
    Sketcher.Constraint("DistanceX", 2, 3, 3, 3, Q("21.9075 mm")),
    Sketcher.Constraint("DistanceX", 0, 3, -1, 1, Q("69.96875 mm")),
])
pocket10 = doc.addObject("PartDesign::Pocket", "Pocket009")
body.addObject(pocket10)
pocket10.Profile = sketch14
pocket10.Length = 1.675

doc.recompute()
